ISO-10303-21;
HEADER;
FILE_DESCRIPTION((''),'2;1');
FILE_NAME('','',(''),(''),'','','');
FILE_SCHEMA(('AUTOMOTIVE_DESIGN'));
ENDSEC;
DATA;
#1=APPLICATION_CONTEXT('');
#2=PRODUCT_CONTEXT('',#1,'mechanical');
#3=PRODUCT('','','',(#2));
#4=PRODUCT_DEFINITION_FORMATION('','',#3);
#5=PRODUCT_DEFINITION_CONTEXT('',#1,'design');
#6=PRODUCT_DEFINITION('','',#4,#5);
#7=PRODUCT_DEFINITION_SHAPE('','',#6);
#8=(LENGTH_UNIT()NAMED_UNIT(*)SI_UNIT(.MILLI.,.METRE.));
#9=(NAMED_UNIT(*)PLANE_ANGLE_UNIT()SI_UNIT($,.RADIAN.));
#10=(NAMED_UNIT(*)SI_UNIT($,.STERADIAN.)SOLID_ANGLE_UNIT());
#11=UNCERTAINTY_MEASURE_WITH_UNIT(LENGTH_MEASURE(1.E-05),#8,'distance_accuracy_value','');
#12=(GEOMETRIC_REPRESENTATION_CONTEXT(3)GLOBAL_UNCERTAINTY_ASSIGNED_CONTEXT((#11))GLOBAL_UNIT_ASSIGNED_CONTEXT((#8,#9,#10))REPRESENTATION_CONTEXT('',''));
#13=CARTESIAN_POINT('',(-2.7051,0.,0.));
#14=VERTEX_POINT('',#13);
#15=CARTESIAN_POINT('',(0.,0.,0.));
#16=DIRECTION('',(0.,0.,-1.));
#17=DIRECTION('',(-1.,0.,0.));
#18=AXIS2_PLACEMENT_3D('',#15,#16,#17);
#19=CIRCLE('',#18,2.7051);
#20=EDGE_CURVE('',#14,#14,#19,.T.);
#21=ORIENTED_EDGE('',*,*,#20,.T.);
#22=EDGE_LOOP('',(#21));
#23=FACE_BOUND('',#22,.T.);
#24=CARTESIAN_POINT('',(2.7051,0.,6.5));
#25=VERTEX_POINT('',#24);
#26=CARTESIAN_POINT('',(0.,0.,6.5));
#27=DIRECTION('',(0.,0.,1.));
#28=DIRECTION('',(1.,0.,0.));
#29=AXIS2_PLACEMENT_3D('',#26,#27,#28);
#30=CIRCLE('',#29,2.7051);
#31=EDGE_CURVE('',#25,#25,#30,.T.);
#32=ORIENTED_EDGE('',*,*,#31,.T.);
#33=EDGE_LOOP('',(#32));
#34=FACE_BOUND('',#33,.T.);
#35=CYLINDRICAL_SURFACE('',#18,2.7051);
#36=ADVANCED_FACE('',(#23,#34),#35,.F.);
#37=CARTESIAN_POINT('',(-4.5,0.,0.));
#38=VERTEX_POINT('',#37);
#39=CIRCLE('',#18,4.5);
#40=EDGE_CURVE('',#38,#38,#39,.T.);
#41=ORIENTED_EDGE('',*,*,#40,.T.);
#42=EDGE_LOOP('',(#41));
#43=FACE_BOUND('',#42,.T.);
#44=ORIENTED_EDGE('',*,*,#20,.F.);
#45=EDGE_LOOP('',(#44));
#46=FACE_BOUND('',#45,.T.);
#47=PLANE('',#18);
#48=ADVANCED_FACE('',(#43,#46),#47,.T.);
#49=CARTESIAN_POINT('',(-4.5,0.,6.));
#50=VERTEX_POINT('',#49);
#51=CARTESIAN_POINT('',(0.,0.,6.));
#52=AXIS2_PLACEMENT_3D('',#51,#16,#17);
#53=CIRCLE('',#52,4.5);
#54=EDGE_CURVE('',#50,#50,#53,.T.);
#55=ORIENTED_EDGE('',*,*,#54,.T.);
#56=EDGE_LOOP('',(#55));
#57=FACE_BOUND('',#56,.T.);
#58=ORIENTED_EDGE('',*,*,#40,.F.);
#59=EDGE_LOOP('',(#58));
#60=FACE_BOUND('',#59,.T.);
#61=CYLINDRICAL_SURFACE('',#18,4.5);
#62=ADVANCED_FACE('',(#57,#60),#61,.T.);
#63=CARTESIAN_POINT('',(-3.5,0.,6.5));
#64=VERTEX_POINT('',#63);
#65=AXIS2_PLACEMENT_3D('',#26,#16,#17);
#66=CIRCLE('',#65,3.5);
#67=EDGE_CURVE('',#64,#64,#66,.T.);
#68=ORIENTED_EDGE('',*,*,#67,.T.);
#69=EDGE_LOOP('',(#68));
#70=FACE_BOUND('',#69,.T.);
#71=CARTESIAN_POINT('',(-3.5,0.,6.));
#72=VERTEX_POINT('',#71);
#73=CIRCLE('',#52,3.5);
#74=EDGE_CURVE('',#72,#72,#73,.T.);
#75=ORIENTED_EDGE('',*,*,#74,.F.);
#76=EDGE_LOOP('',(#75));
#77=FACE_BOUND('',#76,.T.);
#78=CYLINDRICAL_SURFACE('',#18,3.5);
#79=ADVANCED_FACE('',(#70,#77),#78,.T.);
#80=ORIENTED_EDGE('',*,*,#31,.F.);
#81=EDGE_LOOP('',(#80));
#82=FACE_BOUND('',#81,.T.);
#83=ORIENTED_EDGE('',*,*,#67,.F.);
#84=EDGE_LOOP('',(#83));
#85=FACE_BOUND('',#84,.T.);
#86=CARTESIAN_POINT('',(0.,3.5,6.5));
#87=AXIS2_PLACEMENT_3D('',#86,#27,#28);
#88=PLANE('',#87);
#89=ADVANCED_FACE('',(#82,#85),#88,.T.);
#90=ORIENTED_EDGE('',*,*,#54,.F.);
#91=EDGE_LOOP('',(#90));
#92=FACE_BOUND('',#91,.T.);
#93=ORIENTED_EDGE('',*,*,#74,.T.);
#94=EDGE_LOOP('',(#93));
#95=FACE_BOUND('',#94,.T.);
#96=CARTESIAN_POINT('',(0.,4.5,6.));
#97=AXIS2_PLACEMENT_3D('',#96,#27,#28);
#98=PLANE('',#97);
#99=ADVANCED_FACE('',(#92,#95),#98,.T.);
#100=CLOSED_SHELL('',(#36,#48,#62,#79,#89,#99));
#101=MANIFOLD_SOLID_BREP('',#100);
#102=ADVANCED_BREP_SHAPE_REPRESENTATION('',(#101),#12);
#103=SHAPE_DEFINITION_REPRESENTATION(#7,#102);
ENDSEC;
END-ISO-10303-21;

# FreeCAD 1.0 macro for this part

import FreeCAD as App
import Part
import Sketcher
from FreeCAD import Vector
Q = App.Units.Quantity

doc = App.newDocument("Part")
body = doc.addObject("PartDesign::Body", "Body")

sketch1 = body.newObject("Sketcher::SketchObject", "Sketch")
sketch1.AttachmentSupport = (doc.getObject("YZ_Plane"), [""])
sketch1.MapMode = "FlatFace"
sketch1.addGeometry([
    Part.LineSegment(Vector(0, 0, 0), Vector(4.5, 0, 0)),
    Part.LineSegment(Vector(4.5, 0, 0), Vector(4.5, 6, 0)),
    Part.LineSegment(Vector(4.5, 6, 0), Vector(3.5, 6, 0)),
    Part.LineSegment(Vector(3.5, 6, 0), Vector(3.5, 6.5, 0)),
    Part.LineSegment(Vector(3.5, 6.5, 0), Vector(0, 6.5, 0)),
    Part.LineSegment(Vector(0, 6.5, 0), Vector(0, 0, 0)),
], False)
sketch1.addConstraint([
    Sketcher.Constraint("Coincident", 0, 2, 1, 1),
    Sketcher.Constraint("Coincident", 1, 2, 2, 1),
    Sketcher.Constraint("Coincident", 2, 2, 3, 1),
    Sketcher.Constraint("Coincident", 3, 2, 4, 1),
    Sketcher.Constraint("Coincident", 4, 2, 5, 1),
    Sketcher.Constraint("Coincident", 5, 2, 0, 1),
    Sketcher.Constraint("Horizontal", 0),
    Sketcher.Constraint("Vertical", 1),
    Sketcher.Constraint("Horizontal", 2),
    Sketcher.Constraint("Vertical", 3),
    Sketcher.Constraint("Horizontal", 4),
    Sketcher.Constraint("Vertical", 5),
    Sketcher.Constraint("Coincident", 5, 2, -1, 1),
    Sketcher.Constraint("DistanceX", 2, 2, 2, 1, Q("1 mm")),
    Sketcher.Constraint("DistanceY", 1, 1, 1, 2, Q("6 mm")),
    Sketcher.Constraint("DistanceX", 0, 1, 0, 2, Q("4.5 mm")),
    Sketcher.Constraint("DistanceY", 3, 1, 3, 2, Q("0.5 mm")),
])
revolution = body.newObject("PartDesign::Revolution", "Revolution")
revolution.Profile = sketch1
revolution.ReferenceAxis = (sketch1, ["V_Axis"])
revolution.Angle = 360

sketch2 = body.newObject("Sketcher::SketchObject", "Sketch001")
sketch2.AttachmentSupport = (doc.getObject("XY_Plane"), [""])
sketch2.MapMode = "FlatFace"
sketch2.addGeometry(Part.Circle(Vector(0, 0, 0), Vector(0, 0, 1), 2.7), False)
sketch2.addConstraint([
    Sketcher.Constraint("Coincident", 0, 3, -1, 1),
    Sketcher.Constraint("Diameter", 0, Q("5.4102 mm")),
])
doc.recompute()
hole = body.newObject("PartDesign::Hole", "Hole")
hole.Profile = sketch2
hole.ThreadType = "None"
hole.Diameter = 5.4102
hole.DepthType = "Dimension"
hole.Depth = 17.2339
hole.DrillPoint = "Angled"
hole.DrillPointAngle = 118
hole.Reversed = True

doc.recompute()
